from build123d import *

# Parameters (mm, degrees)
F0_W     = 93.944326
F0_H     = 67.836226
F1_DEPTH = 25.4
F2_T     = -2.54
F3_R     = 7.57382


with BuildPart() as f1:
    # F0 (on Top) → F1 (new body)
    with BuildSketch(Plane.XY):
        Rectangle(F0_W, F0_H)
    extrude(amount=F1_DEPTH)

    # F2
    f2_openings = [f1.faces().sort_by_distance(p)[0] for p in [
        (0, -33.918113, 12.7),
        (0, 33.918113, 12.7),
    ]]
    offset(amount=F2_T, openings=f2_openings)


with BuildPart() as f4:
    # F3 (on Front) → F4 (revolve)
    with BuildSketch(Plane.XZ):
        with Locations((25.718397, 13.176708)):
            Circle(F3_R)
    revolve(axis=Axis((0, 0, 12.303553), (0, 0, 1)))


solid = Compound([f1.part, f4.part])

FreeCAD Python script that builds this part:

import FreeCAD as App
import Part
import Sketcher

V = App.Vector
Q = App.Units.Quantity


def faces_at(feature, points):
    """Names of the faces that lie closest to the given points."""
    faces = feature.Shape.Faces
    near = lambda p: min(range(len(faces)), key=lambda i: faces[i].distToShape(Part.Vertex(*p))[0])
    return sorted({f"Face{near(p) + 1}" for p in points})


def add_polygon(sketch, points):
    """Adds a closed chain of lines whose ends are joined by coincident constraints."""
    first, n = sketch.GeometryCount, len(points)
    for a, b in zip(points, points[1:] + points[:1]):
        sketch.addGeometry(Part.LineSegment(App.Vector(*a, 0), App.Vector(*b, 0)), False)
    for i in range(n):
        sketch.addConstraint(Sketcher.Constraint("Coincident", first + i, 2, first + (i + 1) % n, 1))

doc = App.newDocument("Part")
params = doc.addObject("Spreadsheet::Sheet", "Params")
for row, (alias, value) in enumerate([
    ("pad1_length", "1 in"),
    ("thickness_wall", "0.1 in"),
    ("revolution_angle", "360 deg"),
], start=1):
    params.set(f"A{row}", alias)
    params.set(f"B{row}", "=" + value)
    params.setAlias(f"B{row}", alias)

body = doc.addObject("PartDesign::Body", "Body")

# Sketch on XY plane
sketch1 = body.newObject("Sketcher::SketchObject", "Sketch")
sketch1.AttachmentSupport = (doc.getObject("XY_Plane"), [""])
sketch1.MapMode = "FlatFace"
add_polygon(sketch1, [(-46.972163, 33.918113), (-46.972163, -33.918113), (46.972163, -33.918113), (46.972163, 33.918113)])  # lines 0-3
sketch1.addConstraint(Sketcher.Constraint("Vertical", 0))
sketch1.addConstraint(Sketcher.Constraint("Horizontal", 1))
sketch1.addConstraint(Sketcher.Constraint("Vertical", 2))
sketch1.addConstraint(Sketcher.Constraint("Horizontal", 3))
sketch1.addConstraint(Sketcher.Constraint("Symmetric", 0, 2, 2, 2, -1, 1))
sketch1.addConstraint(Sketcher.Constraint("DistanceX", 1, 1, 1, 2, Q("93.944326 mm")))
sketch1.addConstraint(Sketcher.Constraint("DistanceY", 0, 2, 0, 1, Q("67.836226 mm")))
pad1 = body.newObject("PartDesign::Pad", "Pad")
pad1.Profile = sketch1
pad1.setExpression("Length", "Params.pad1_length")
doc.recompute()

thickness = body.newObject("PartDesign::Thickness", "Thickness")
thickness.Base = (pad1, faces_at(pad1, [(0, -33.918, 12.7), (0, 33.918, 12.7)]))
thickness.setExpression("Value", "Params.thickness_wall")
thickness.Reversed = True
thickness.Join = "Arc"
body2 = doc.addObject("PartDesign::Body", "Body001")

# Sketch on XZ plane
sketch2 = body2.newObject("Sketcher::SketchObject", "Sketch001")
sketch2.AttachmentSupport = (doc.getObject("XZ_Plane001"), [""])
sketch2.MapMode = "FlatFace"
sketch2.addGeometry(Part.Circle(V(25.718397, 13.176708, 0), V(0, 0, 1), 7.57382), False)
sketch2.addConstraint(Sketcher.Constraint("Diameter", 0, Q("15.14764 mm")))
sketch2.addConstraint(Sketcher.Constraint("DistanceX", -1, 1, 0, 3, Q("25.718397 mm")))
sketch2.addConstraint(Sketcher.Constraint("DistanceY", -1, 1, 0, 3, Q("13.176708 mm")))
revolution = body2.newObject("PartDesign::Revolution", "Revolution")
revolution.Profile = sketch2
revolution.ReferenceAxis = (sketch2, ["V_Axis"])
revolution.setExpression("Angle", "Params.revolution_angle")

doc.recompute()
